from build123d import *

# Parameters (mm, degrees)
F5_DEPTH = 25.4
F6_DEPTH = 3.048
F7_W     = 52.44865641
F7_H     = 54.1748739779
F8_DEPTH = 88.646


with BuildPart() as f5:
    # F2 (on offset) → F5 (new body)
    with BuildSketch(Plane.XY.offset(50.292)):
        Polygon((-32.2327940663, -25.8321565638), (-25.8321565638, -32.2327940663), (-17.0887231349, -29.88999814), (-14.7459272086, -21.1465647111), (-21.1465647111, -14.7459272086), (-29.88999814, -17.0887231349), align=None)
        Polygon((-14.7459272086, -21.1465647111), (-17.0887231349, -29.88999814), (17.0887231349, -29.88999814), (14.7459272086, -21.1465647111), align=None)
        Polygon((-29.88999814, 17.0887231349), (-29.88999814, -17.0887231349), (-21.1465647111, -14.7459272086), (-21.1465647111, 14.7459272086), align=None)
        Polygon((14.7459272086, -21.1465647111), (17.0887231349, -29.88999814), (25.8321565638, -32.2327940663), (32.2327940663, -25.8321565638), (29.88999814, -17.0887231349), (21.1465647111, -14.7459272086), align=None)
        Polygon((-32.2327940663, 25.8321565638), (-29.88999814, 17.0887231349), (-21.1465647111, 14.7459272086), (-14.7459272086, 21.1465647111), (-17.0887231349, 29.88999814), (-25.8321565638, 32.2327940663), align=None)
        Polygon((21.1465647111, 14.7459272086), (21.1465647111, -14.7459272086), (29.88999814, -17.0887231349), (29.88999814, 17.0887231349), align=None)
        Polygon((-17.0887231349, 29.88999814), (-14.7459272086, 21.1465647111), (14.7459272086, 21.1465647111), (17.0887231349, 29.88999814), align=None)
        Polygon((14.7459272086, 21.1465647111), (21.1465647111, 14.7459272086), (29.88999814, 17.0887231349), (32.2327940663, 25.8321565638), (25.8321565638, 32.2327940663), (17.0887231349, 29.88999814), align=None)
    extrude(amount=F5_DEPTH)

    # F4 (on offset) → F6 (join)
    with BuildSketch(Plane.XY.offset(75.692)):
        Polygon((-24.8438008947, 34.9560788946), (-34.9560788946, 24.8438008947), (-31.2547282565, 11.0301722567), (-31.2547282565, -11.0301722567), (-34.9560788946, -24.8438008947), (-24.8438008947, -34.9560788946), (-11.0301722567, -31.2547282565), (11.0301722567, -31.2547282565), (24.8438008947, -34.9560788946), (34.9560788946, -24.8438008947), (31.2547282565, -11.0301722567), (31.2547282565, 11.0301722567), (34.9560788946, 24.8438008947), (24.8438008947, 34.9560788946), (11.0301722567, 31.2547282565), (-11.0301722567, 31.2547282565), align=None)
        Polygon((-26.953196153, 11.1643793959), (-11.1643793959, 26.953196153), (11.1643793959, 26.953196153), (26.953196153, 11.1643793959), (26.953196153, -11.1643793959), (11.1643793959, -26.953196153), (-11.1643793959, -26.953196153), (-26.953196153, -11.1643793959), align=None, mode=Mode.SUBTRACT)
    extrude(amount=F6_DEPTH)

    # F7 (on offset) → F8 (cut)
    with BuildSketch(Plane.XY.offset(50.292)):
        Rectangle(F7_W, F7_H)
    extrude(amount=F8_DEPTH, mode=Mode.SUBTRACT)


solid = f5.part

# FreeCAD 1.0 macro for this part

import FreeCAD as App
import Part
import Sketcher
Q = App.Units.Quantity

doc = App.newDocument("Part")
body = doc.addObject("PartDesign::Body", "Body")

# Sketch on XY plane
sketch1 = body.newObject("Sketcher::SketchObject", "Sketch")
sketch1.AttachmentSupport = (doc.getObject("XY_Plane"), [""])
sketch1.MapMode = "FlatFace"
sketch1.AttachmentOffset = App.Placement(App.Vector(0, 0, 1.98 * 25.4), App.Rotation())
sketch1.addGeometry([
    Part.LineSegment(App.Vector(-32, -26, 0), App.Vector(-26, -32, 0)),  # 0
    Part.LineSegment(App.Vector(-26, -32, 0), App.Vector(-17, -30, 0)),  # 1
    Part.LineSegment(App.Vector(-17, -30, 0), App.Vector(17, -30, 0)),  # 2
    Part.LineSegment(App.Vector(17, -30, 0), App.Vector(26, -32, 0)),  # 3
    Part.LineSegment(App.Vector(26, -32, 0), App.Vector(32, -26, 0)),  # 4
    Part.LineSegment(App.Vector(32, -26, 0), App.Vector(30, -17, 0)),  # 5
    Part.LineSegment(App.Vector(30, -17, 0), App.Vector(30, 17, 0)),  # 6
    Part.LineSegment(App.Vector(30, 17, 0), App.Vector(32, 26, 0)),  # 7
    Part.LineSegment(App.Vector(32, 26, 0), App.Vector(26, 32, 0)),  # 8
    Part.LineSegment(App.Vector(26, 32, 0), App.Vector(17, 30, 0)),  # 9
    Part.LineSegment(App.Vector(17, 30, 0), App.Vector(-17, 30, 0)),  # 10
    Part.LineSegment(App.Vector(-17, 30, 0), App.Vector(-26, 32, 0)),  # 11
    Part.LineSegment(App.Vector(-26, 32, 0), App.Vector(-32, 26, 0)),  # 12
    Part.LineSegment(App.Vector(-32, 26, 0), App.Vector(-30, 17, 0)),  # 13
    Part.LineSegment(App.Vector(-30, 17, 0), App.Vector(-30, -17, 0)),  # 14
    Part.LineSegment(App.Vector(-30, -17, 0), App.Vector(-32, -26, 0)),  # 15
    Part.LineSegment(App.Vector(21, 15, 0), App.Vector(21, -15, 0)),  # 16
    Part.LineSegment(App.Vector(21, -15, 0), App.Vector(15, -21, 0)),  # 17
    Part.LineSegment(App.Vector(15, -21, 0), App.Vector(-15, -21, 0)),  # 18
    Part.LineSegment(App.Vector(-15, -21, 0), App.Vector(-21, -15, 0)),  # 19
    Part.LineSegment(App.Vector(-21, -15, 0), App.Vector(-21, 15, 0)),  # 20
    Part.LineSegment(App.Vector(-21, 15, 0), App.Vector(-15, 21, 0)),  # 21
    Part.LineSegment(App.Vector(-15, 21, 0), App.Vector(15, 21, 0)),  # 22
    Part.LineSegment(App.Vector(15, 21, 0), App.Vector(21, 15, 0)),  # 23
], False)
sketch1.addConstraint([
    Sketcher.Constraint("Coincident", 0, 2, 1, 1),
    Sketcher.Constraint("Coincident", 1, 2, 2, 1),
    Sketcher.Constraint("Coincident", 2, 2, 3, 1),
    Sketcher.Constraint("Coincident", 3, 2, 4, 1),
    Sketcher.Constraint("Coincident", 4, 2, 5, 1),
    Sketcher.Constraint("Coincident", 5, 2, 6, 1),
    Sketcher.Constraint("Coincident", 6, 2, 7, 1),
    Sketcher.Constraint("Coincident", 7, 2, 8, 1),
    Sketcher.Constraint("Coincident", 8, 2, 9, 1),
    Sketcher.Constraint("Coincident", 9, 2, 10, 1),
    Sketcher.Constraint("Coincident", 10, 2, 11, 1),
    Sketcher.Constraint("Coincident", 11, 2, 12, 1),
    Sketcher.Constraint("Coincident", 12, 2, 13, 1),
    Sketcher.Constraint("Coincident", 13, 2, 14, 1),
    Sketcher.Constraint("Coincident", 14, 2, 15, 1),
    Sketcher.Constraint("Coincident", 15, 2, 0, 1),
    Sketcher.Constraint("Coincident", 16, 2, 17, 1),
    Sketcher.Constraint("Coincident", 17, 2, 18, 1),
    Sketcher.Constraint("Coincident", 18, 2, 19, 1),
    Sketcher.Constraint("Coincident", 19, 2, 20, 1),
    Sketcher.Constraint("Coincident", 20, 2, 21, 1),
    Sketcher.Constraint("Coincident", 21, 2, 22, 1),
    Sketcher.Constraint("Coincident", 22, 2, 23, 1),
    Sketcher.Constraint("Coincident", 23, 2, 16, 1),
    Sketcher.Constraint("Horizontal", 2),
    Sketcher.Constraint("Vertical", 6),
    Sketcher.Constraint("Horizontal", 10),
    Sketcher.Constraint("Vertical", 14),
    Sketcher.Constraint("Vertical", 16),
    Sketcher.Constraint("Horizontal", 18),
    Sketcher.Constraint("Vertical", 20),
    Sketcher.Constraint("Horizontal", 22),
    Sketcher.Constraint("Symmetric", 0, 2, 8, 2, -1, 1),
    Sketcher.Constraint("Symmetric", 1, 2, 9, 2, -1, 1),
    Sketcher.Constraint("Symmetric", 3, 2, 11, 2, -1, 1),
    Sketcher.Constraint("Symmetric", 4, 2, 12, 2, -1, 1),
    Sketcher.Constraint("Symmetric", 5, 2, 13, 2, -1, 1),
    Sketcher.Constraint("Symmetric", 7, 2, 15, 2, -1, 1),
    Sketcher.Constraint("Symmetric", 16, 2, 20, 2, -1, 1),
    Sketcher.Constraint("Symmetric", 17, 2, 21, 2, -1, 1),
    Sketcher.Constraint("Symmetric", 0, 2, 3, 2, -2),
    Sketcher.Constraint("Symmetric", 7, 2, 12, 2, -2),
    Sketcher.Constraint("Perpendicular", 0, 4),
    Sketcher.Constraint("Perpendicular", 1, 5),
    Sketcher.Constraint("Perpendicular", 3, 7),
    Sketcher.Constraint("Perpendicular", 7, 11),
    Sketcher.Constraint("Perpendicular", 11, 15),
    Sketcher.Constraint("Parallel", 12, 17),
    Sketcher.Constraint("Perpendicular", 17, 19),
    Sketcher.Constraint("Perpendicular", 21, 23),
    Sketcher.Constraint("Horizontal", 6, 2, 13, 2),
    Sketcher.Constraint("Horizontal", 16, 2, 19, 2),
    Sketcher.Constraint("Horizontal", 20, 2, 23, 2),
    Sketcher.Constraint("Equal", 10, 6),
    Sketcher.Constraint("Equal", 22, 16),
    Sketcher.Constraint("Equal", 0, 1),
    Sketcher.Constraint("Equal", 4, 5),
    Sketcher.Constraint("Equal", 15, 17),
    Sketcher.Constraint("Angle", 1, Q("15 deg")),
    Sketcher.Constraint("DistanceY", 1, 2, -1, 1, 29.889998),
    Sketcher.Constraint("Distance", 0, 9.051868),
    Sketcher.Constraint("DistanceX", 18, 2, 18, 1, 29.491854),
])
pad1 = body.newObject("PartDesign::Pad", "Pad")
pad1.Profile = sketch1
pad1.Length = Q("1 in")

# Sketch on XY plane
sketch2 = body.newObject("Sketcher::SketchObject", "Sketch001")
sketch2.AttachmentSupport = (doc.getObject("XY_Plane"), [""])
sketch2.MapMode = "FlatFace"
sketch2.AttachmentOffset = App.Placement(App.Vector(0, 0, 2.98 * 25.4), App.Rotation())
sketch2.addGeometry([
    Part.LineSegment(App.Vector(-25, 35, 0), App.Vector(-35, 25, 0)),  # 0
    Part.LineSegment(App.Vector(-35, 25, 0), App.Vector(-31, 11, 0)),  # 1
    Part.LineSegment(App.Vector(-31, 11, 0), App.Vector(-31, -11, 0)),  # 2
    Part.LineSegment(App.Vector(-31, -11, 0), App.Vector(-35, -25, 0)),  # 3
    Part.LineSegment(App.Vector(-35, -25, 0), App.Vector(-25, -35, 0)),  # 4
    Part.LineSegment(App.Vector(-25, -35, 0), App.Vector(-11, -31, 0)),  # 5
    Part.LineSegment(App.Vector(-11, -31, 0), App.Vector(11, -31, 0)),  # 6
    Part.LineSegment(App.Vector(11, -31, 0), App.Vector(25, -35, 0)),  # 7
    Part.LineSegment(App.Vector(25, -35, 0), App.Vector(35, -25, 0)),  # 8
    Part.LineSegment(App.Vector(35, -25, 0), App.Vector(31, -11, 0)),  # 9
    Part.LineSegment(App.Vector(31, -11, 0), App.Vector(31, 11, 0)),  # 10
    Part.LineSegment(App.Vector(31, 11, 0), App.Vector(35, 25, 0)),  # 11
    Part.LineSegment(App.Vector(35, 25, 0), App.Vector(25, 35, 0)),  # 12
    Part.LineSegment(App.Vector(25, 35, 0), App.Vector(11, 31, 0)),  # 13
    Part.LineSegment(App.Vector(11, 31, 0), App.Vector(-11, 31, 0)),  # 14
    Part.LineSegment(App.Vector(-11, 31, 0), App.Vector(-25, 35, 0)),  # 15
    Part.LineSegment(App.Vector(-27, -11, 0), App.Vector(-27, 11, 0)),  # 16
    Part.LineSegment(App.Vector(-27, 11, 0), App.Vector(-11, 27, 0)),  # 17
    Part.LineSegment(App.Vector(-11, 27, 0), App.Vector(11, 27, 0)),  # 18
    Part.LineSegment(App.Vector(11, 27, 0), App.Vector(27, 11, 0)),  # 19
    Part.LineSegment(App.Vector(27, 11, 0), App.Vector(27, -11, 0)),  # 20
    Part.LineSegment(App.Vector(27, -11, 0), App.Vector(11, -27, 0)),  # 21
    Part.LineSegment(App.Vector(11, -27, 0), App.Vector(-11, -27, 0)),  # 22
    Part.LineSegment(App.Vector(-11, -27, 0), App.Vector(-27, -11, 0)),  # 23
], False)
sketch2.addConstraint([
    Sketcher.Constraint("Coincident", 0, 2, 1, 1),
    Sketcher.Constraint("Coincident", 1, 2, 2, 1),
    Sketcher.Constraint("Coincident", 2, 2, 3, 1),
    Sketcher.Constraint("Coincident", 3, 2, 4, 1),
    Sketcher.Constraint("Coincident", 4, 2, 5, 1),
    Sketcher.Constraint("Coincident", 5, 2, 6, 1),
    Sketcher.Constraint("Coincident", 6, 2, 7, 1),
    Sketcher.Constraint("Coincident", 7, 2, 8, 1),
    Sketcher.Constraint("Coincident", 8, 2, 9, 1),
    Sketcher.Constraint("Coincident", 9, 2, 10, 1),
    Sketcher.Constraint("Coincident", 10, 2, 11, 1),
    Sketcher.Constraint("Coincident", 11, 2, 12, 1),
    Sketcher.Constraint("Coincident", 12, 2, 13, 1),
    Sketcher.Constraint("Coincident", 13, 2, 14, 1),
    Sketcher.Constraint("Coincident", 14, 2, 15, 1),
    Sketcher.Constraint("Coincident", 15, 2, 0, 1),
    Sketcher.Constraint("Coincident", 16, 2, 17, 1),
    Sketcher.Constraint("Coincident", 17, 2, 18, 1),
    Sketcher.Constraint("Coincident", 18, 2, 19, 1),
    Sketcher.Constraint("Coincident", 19, 2, 20, 1),
    Sketcher.Constraint("Coincident", 20, 2, 21, 1),
    Sketcher.Constraint("Coincident", 21, 2, 22, 1),
    Sketcher.Constraint("Coincident", 22, 2, 23, 1),
    Sketcher.Constraint("Coincident", 23, 2, 16, 1),
    Sketcher.Constraint("Vertical", 2),
    Sketcher.Constraint("Horizontal", 6),
    Sketcher.Constraint("Vertical", 10),
    Sketcher.Constraint("Horizontal", 14),
    Sketcher.Constraint("Vertical", 16),
    Sketcher.Constraint("Horizontal", 18),
    Sketcher.Constraint("Vertical", 20),
    Sketcher.Constraint("Horizontal", 22),
    Sketcher.Constraint("Symmetric", 0, 2, 8, 2, -1, 1),
    Sketcher.Constraint("Symmetric", 1, 2, 9, 2, -1, 1),
    Sketcher.Constraint("Symmetric", 3, 2, 11, 2, -1, 1),
    Sketcher.Constraint("Symmetric", 4, 2, 12, 2, -1, 1),
    Sketcher.Constraint("Symmetric", 5, 2, 13, 2, -1, 1),
    Sketcher.Constraint("Symmetric", 7, 2, 15, 2, -1, 1),
    Sketcher.Constraint("Symmetric", 16, 2, 20, 2, -1, 1),
    Sketcher.Constraint("Symmetric", 17, 2, 21, 2, -1, 1),
    Sketcher.Constraint("Symmetric", 4, 2, 7, 2, -2),
    Sketcher.Constraint("Symmetric", 3, 2, 8, 2, -2),
    Sketcher.Constraint("Perpendicular", 0, 4),
    Sketcher.Constraint("Perpendicular", 1, 5),
    Sketcher.Constraint("Perpendicular", 3, 7),
    Sketcher.Constraint("Perpendicular", 7, 11),
    Sketcher.Constraint("Perpendicular", 11, 15),
    Sketcher.Constraint("Perpendicular", 12, 17),
    Sketcher.Constraint("Perpendicular", 17, 19),
    Sketcher.Constraint("Perpendicular", 21, 23),
    Sketcher.Constraint("Horizontal", 2, 2, 9, 2),
    Sketcher.Constraint("Horizontal", 16, 2, 19, 2),
    Sketcher.Constraint("Horizontal", 20, 2, 23, 2),
    Sketcher.Constraint("Equal", 14, 2),
    Sketcher.Constraint("Equal", 22, 16),
    Sketcher.Constraint("Equal", 0, 1),
    Sketcher.Constraint("Equal", 4, 5),
    Sketcher.Constraint("Angle", 1, Q("-75 deg")),
    Sketcher.Constraint("DistanceX", 18, 1, 18, 2, 22.328759),
    Sketcher.Constraint("DistanceY", -1, 1, 0, 2, 24.843801),
    Sketcher.Constraint("DistanceY", 5, 2, 1, 2, 42.284901),
    Sketcher.Constraint("Distance", 17, 22.328759),
])
pad2 = body.newObject("PartDesign::Pad", "Pad001")
pad2.Profile = sketch2
pad2.Length = Q("0.12 in")

# Sketch on XY plane
sketch3 = body.newObject("Sketcher::SketchObject", "Sketch002")
sketch3.AttachmentSupport = (doc.getObject("XY_Plane"), [""])
sketch3.MapMode = "FlatFace"
sketch3.AttachmentOffset = App.Placement(App.Vector(0, 0, 1.98 * 25.4), App.Rotation())
sketch3.addGeometry([
    Part.LineSegment(App.Vector(-26, 27, 0), App.Vector(-26, -27, 0)),
    Part.LineSegment(App.Vector(-26, -27, 0), App.Vector(26, -27, 0)),
    Part.LineSegment(App.Vector(26, -27, 0), App.Vector(26, 27, 0)),
    Part.LineSegment(App.Vector(26, 27, 0), App.Vector(-26, 27, 0)),
], False)
sketch3.addConstraint([
    Sketcher.Constraint("Coincident", 0, 2, 1, 1),
    Sketcher.Constraint("Coincident", 1, 2, 2, 1),
    Sketcher.Constraint("Coincident", 2, 2, 3, 1),
    Sketcher.Constraint("Coincident", 3, 2, 0, 1),
    Sketcher.Constraint("Vertical", 0),
    Sketcher.Constraint("Horizontal", 1),
    Sketcher.Constraint("Vertical", 2),
    Sketcher.Constraint("Horizontal", 3),
    Sketcher.Constraint("Symmetric", 0, 2, 2, 2, -1, 1),
    Sketcher.Constraint("DistanceX", 1, 1, 1, 2, 52.448656),
    Sketcher.Constraint("DistanceY", 0, 2, 0, 1, 54.174874),
])
pocket1 = body.newObject("PartDesign::Pocket", "Pocket")
pocket1.Profile = sketch3
pocket1.Length = Q("3.49 in")
pocket1.Reversed = True

doc.recompute()
